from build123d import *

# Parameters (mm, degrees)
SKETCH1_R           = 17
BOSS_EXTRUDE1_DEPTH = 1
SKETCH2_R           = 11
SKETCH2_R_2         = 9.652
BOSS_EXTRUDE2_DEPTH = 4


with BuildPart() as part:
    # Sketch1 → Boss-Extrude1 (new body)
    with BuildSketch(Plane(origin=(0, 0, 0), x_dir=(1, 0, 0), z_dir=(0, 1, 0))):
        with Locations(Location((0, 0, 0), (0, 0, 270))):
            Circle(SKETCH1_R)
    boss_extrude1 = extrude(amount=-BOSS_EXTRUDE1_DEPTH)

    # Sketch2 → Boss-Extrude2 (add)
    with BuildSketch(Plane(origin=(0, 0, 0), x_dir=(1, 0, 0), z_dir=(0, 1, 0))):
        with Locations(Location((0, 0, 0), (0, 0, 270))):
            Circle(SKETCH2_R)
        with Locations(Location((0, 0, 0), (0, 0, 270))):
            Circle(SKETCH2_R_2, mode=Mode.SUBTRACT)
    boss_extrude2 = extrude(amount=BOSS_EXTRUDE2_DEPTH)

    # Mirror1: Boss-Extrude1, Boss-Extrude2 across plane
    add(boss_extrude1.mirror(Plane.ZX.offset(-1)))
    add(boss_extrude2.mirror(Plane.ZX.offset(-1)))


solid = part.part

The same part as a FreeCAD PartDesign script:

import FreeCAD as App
import Part
import Sketcher
from FreeCAD import Vector

doc = App.newDocument("Part")
body = doc.addObject("PartDesign::Body", "Body")

sketch1 = doc.addObject("Sketcher::SketchObject", "Sketch")
body.addObject(sketch1)
sketch1.AttachmentSupport = (doc.XZ_Plane, [""])
sketch1.MapMode = "FlatFace"
sketch1.addGeometry(Part.Circle(Vector(0, 0, 0), Vector(0, 0, 1), 17), False)
sketch1.addConstraint([
    Sketcher.Constraint("Coincident", 0, 3, -1, 1),
    Sketcher.Constraint("Diameter", 0, 34.0),
])
pad1 = doc.addObject("PartDesign::Pad", "Pad")
body.addObject(pad1)
pad1.Profile = sketch1
pad1.Length = 1

sketch2 = doc.addObject("Sketcher::SketchObject", "Sketch001")
body.addObject(sketch2)
sketch2.AttachmentSupport = (doc.XZ_Plane, [""])
sketch2.MapMode = "FlatFace"
sketch2.addGeometry([
    Part.Circle(Vector(0, 0, 0), Vector(0, 0, 1), 11),
    Part.Circle(Vector(0, 0, 0), Vector(0, 0, 1), 10),
], False)
sketch2.addConstraint([
    Sketcher.Constraint("Coincident", 0, 3, -1, 1),
    Sketcher.Constraint("Coincident", 1, 3, -1, 1),
    Sketcher.Constraint("Diameter", 0, 22.0),
    Sketcher.Constraint("Diameter", 1, 19.304),
])
pad2 = doc.addObject("PartDesign::Pad", "Pad001")
body.addObject(pad2)
pad2.Profile = sketch2
pad2.Length = 4
pad2.Reversed = True
doc.recompute()

datumplane = doc.addObject("PartDesign::Plane", "DatumPlane")
body.addObject(datumplane)
datumplane.AttachmentSupport = (doc.XZ_Plane, [""])
datumplane.MapMode = "FlatFace"
datumplane.AttachmentOffset = App.Placement(Vector(0, 0, 1), App.Rotation())
mirrored = doc.addObject("PartDesign::Mirrored", "Mirrored")
body.addObject(mirrored)
mirrored.Originals = [pad1, pad2]
mirrored.MirrorPlane = (datumplane, [""])
body.Tip = mirrored

doc.recompute()
